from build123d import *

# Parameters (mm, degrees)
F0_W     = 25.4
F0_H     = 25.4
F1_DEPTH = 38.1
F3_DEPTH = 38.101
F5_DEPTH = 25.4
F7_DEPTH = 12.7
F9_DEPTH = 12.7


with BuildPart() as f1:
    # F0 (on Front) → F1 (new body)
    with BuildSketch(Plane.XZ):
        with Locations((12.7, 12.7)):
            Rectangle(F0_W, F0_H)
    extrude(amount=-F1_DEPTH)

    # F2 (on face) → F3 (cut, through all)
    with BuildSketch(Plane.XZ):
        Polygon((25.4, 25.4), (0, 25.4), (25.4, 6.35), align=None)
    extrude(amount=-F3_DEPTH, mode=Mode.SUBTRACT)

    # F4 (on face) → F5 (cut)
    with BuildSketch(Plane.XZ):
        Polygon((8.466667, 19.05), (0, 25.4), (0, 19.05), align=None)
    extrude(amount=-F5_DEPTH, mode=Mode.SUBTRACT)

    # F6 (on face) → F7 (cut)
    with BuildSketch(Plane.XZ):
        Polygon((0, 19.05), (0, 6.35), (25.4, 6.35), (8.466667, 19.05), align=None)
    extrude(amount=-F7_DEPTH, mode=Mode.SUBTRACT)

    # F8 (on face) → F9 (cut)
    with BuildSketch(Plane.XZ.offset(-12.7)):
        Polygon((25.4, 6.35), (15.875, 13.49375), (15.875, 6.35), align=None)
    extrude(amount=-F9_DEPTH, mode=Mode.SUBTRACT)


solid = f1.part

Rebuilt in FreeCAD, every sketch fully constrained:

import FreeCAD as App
import Part
import Sketcher
from FreeCAD import Vector
Q = App.Units.Quantity


def add_polygon(sketch, points):
    """Adds a closed chain of lines whose ends are joined by coincident constraints."""
    first, n = sketch.GeometryCount, len(points)
    for a, b in zip(points, points[1:] + points[:1]):
        sketch.addGeometry(Part.LineSegment(App.Vector(*a, 0), App.Vector(*b, 0)), False)
    for i in range(n):
        sketch.addConstraint(Sketcher.Constraint("Coincident", first + i, 2, first + (i + 1) % n, 1))

doc = App.newDocument("Part")
params = doc.addObject("Spreadsheet::Sheet", "Params")
for row, (alias, value) in enumerate([
    ("sketch1_width", "1 in"),
    ("pad1_length", "1.5 in"),
    ("sketch2_width", "1 in"),
    ("sketch2_height", "0.75 in"),
    ("sketch3_height", "0.25 in"),
    ("pocket2_length", "1 in"),
    ("sketch4_width", "1 in"),
    ("sketch4_height", "0.5 in"),
    ("pocket3_length", "0.5 in"),
    ("sketch5_width", "0.375 in"),
    ("sketch5_height", "0.28125 in"),
    ("pocket4_length", "0.5 in"),
], start=1):
    params.set(f"A{row}", alias)
    params.set(f"B{row}", "=" + value)
    params.setAlias(f"B{row}", alias)

body = doc.addObject("PartDesign::Body", "Body")

sketch1 = doc.addObject("Sketcher::SketchObject", "Sketch")
body.addObject(sketch1)
sketch1.AttachmentSupport = (doc.XZ_Plane, [""])
sketch1.MapMode = "FlatFace"
add_polygon(sketch1, [(0, 25.4), (0, 0), (25.4, 0), (25.4, 25.4)])
sketch1.addConstraint([
    Sketcher.Constraint("Vertical", 0),
    Sketcher.Constraint("Horizontal", 1),
    Sketcher.Constraint("Vertical", 2),
    Sketcher.Constraint("Horizontal", 3),
    Sketcher.Constraint("Coincident", 0, 2, -1, 1),
    Sketcher.Constraint("Equal", 3, 0),
    Sketcher.Constraint("DistanceX", 1, 1, 1, 2, Q("1 in")),
])
sketch1.setExpression("Constraints[10]", "Params.sketch1_width")
pad1 = doc.addObject("PartDesign::Pad", "Pad")
body.addObject(pad1)
pad1.Profile = sketch1
pad1.setExpression("Length", "Params.pad1_length")
pad1.Reversed = True

sketch2 = doc.addObject("Sketcher::SketchObject", "Sketch001")
body.addObject(sketch2)
sketch2.AttachmentSupport = (doc.XZ_Plane, [""])
sketch2.MapMode = "FlatFace"
add_polygon(sketch2, [(25.4, 25.4), (0, 25.4), (25.4, 6.35)])
sketch2.addConstraint([
    Sketcher.Constraint("Horizontal", 0),
    Sketcher.Constraint("Vertical", 2),
    Sketcher.Constraint("PointOnObject", 0, 2, -2),
    Sketcher.Constraint("DistanceX", 0, 2, 0, 1, Q("1 in")),
    Sketcher.Constraint("DistanceY", -1, 1, 0, 2, Q("1 in")),
    Sketcher.Constraint("DistanceY", 2, 1, 2, 2, Q("0.75 in")),
])
sketch2.setExpression("Constraints[6]", "Params.sketch2_width")
sketch2.setExpression("Constraints[8]", "Params.sketch2_height")
pocket1 = doc.addObject("PartDesign::Pocket", "Pocket")
body.addObject(pocket1)
pocket1.Profile = sketch2
pocket1.Type = "ThroughAll"

sketch3 = doc.addObject("Sketcher::SketchObject", "Sketch002")
body.addObject(sketch3)
sketch3.AttachmentSupport = (doc.XZ_Plane, [""])
sketch3.MapMode = "FlatFace"
add_polygon(sketch3, [(8.466667, 19.05), (0, 25.4), (0, 19.05)])
sketch3.addConstraint([
    Sketcher.Constraint("Vertical", 1),
    Sketcher.Constraint("Horizontal", 2),
    Sketcher.Constraint("PointOnObject", 0, 2, -2),
    Sketcher.Constraint("DistanceY", -1, 1, 0, 2, Q("1 in")),
    Sketcher.Constraint("DistanceY", 1, 2, 1, 1, Q("0.25 in")),
    Sketcher.Constraint("DistanceX", 2, 1, 2, 2, 8.466667),
])
sketch3.setExpression("Constraints[7]", "Params.sketch3_height")
pocket2 = doc.addObject("PartDesign::Pocket", "Pocket001")
body.addObject(pocket2)
pocket2.Profile = sketch3
pocket2.setExpression("Length", "Params.pocket2_length")

sketch4 = doc.addObject("Sketcher::SketchObject", "Sketch003")
body.addObject(sketch4)
sketch4.AttachmentSupport = (doc.XZ_Plane, [""])
sketch4.MapMode = "FlatFace"
add_polygon(sketch4, [(0, 19.05), (0, 6.35), (25.4, 6.35), (8.466667, 19.05)])
sketch4.addConstraint([
    Sketcher.Constraint("Vertical", 0),
    Sketcher.Constraint("Horizontal", 1),
    Sketcher.Constraint("Horizontal", 3),
    Sketcher.Constraint("PointOnObject", 0, 2, -2),
    Sketcher.Constraint("DistanceX", 1, 1, 1, 2, Q("1 in")),
    Sketcher.Constraint("DistanceY", 0, 2, 0, 1, Q("0.5 in")),
    Sketcher.Constraint("DistanceY", -1, 1, 0, 2, Q("0.25 in")),
    Sketcher.Constraint("DistanceX", 3, 2, 3, 1, 8.466667),
])
sketch4.setExpression("Constraints[8]", "Params.sketch4_width")
sketch4.setExpression("Constraints[9]", "Params.sketch4_height")
pocket3 = doc.addObject("PartDesign::Pocket", "Pocket002")
body.addObject(pocket3)
pocket3.Profile = sketch4
pocket3.setExpression("Length", "Params.pocket3_length")

sketch5 = doc.addObject("Sketcher::SketchObject", "Sketch004")
body.addObject(sketch5)
sketch5.AttachmentSupport = (doc.XZ_Plane, [""])
sketch5.MapMode = "FlatFace"
sketch5.AttachmentOffset = App.Placement(Vector(0, 0, -0.5 * 25.4), App.Rotation())
add_polygon(sketch5, [(25.4, 6.35), (15.875, 13.49375), (15.875, 6.35)])
sketch5.addConstraint([
    Sketcher.Constraint("Vertical", 1),
    Sketcher.Constraint("Horizontal", 2),
    Sketcher.Constraint("DistanceX", -1, 1, 2, 2, Q("1 in")),
    Sketcher.Constraint("DistanceX", 2, 1, 2, 2, Q("0.375 in")),
    Sketcher.Constraint("DistanceY", 1, 2, 1, 1, Q("0.28125 in")),
    Sketcher.Constraint("DistanceY", -1, 1, 1, 2, Q("0.25 in")),
])
sketch5.setExpression("Constraints[6]", "Params.sketch5_width")
sketch5.setExpression("Constraints[7]", "Params.sketch5_height")
pocket4 = doc.addObject("PartDesign::Pocket", "Pocket003")
body.addObject(pocket4)
pocket4.Profile = sketch5
pocket4.setExpression("Length", "Params.pocket4_length")

doc.recompute()
